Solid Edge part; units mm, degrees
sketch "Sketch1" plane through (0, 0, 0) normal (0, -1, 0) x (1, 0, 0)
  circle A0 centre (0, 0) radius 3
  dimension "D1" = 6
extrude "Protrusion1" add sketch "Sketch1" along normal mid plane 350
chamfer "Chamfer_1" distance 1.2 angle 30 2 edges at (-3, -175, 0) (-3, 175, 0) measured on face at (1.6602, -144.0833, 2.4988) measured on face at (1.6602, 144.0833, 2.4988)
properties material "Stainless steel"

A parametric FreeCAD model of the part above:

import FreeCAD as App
import Part
import Sketcher

V = App.Vector


def edges_at(feature, points):
    """Names of the edges that pass closest to the given points."""
    edges = feature.Shape.Edges
    near = lambda p: min(range(len(edges)), key=lambda i: edges[i].distToShape(Part.Vertex(*p))[0])
    return sorted({f"Edge{near(p) + 1}" for p in points})

doc = App.newDocument("Part")
body = doc.addObject("PartDesign::Body", "Body")

# Sketch on XZ plane
sketch1 = body.newObject("Sketcher::SketchObject", "Sketch")
sketch1.AttachmentSupport = (doc.getObject("XZ_Plane"), [""])
sketch1.MapMode = "FlatFace"
sketch1.addGeometry(Part.Circle(V(0, 0, 0), V(0, 0, 1), 3), False)
sketch1.addConstraint([
    Sketcher.Constraint("Coincident", 0, 3, -1, 1),
    Sketcher.Constraint("Diameter", 0, 6.0),
])
pad1 = body.newObject("PartDesign::Pad", "Pad")
pad1.Profile = sketch1
pad1.Length = 350
pad1.Midplane = True
doc.recompute()

chamfer = body.newObject("PartDesign::Chamfer", "Chamfer")
chamfer.Base = (pad1, edges_at(pad1, [(-3, -175, 0), (-3, 175, 0)]))
chamfer.ChamferType = "Distance and Angle"
chamfer.Size = 1.2
chamfer.Angle = 30

doc.recompute()
